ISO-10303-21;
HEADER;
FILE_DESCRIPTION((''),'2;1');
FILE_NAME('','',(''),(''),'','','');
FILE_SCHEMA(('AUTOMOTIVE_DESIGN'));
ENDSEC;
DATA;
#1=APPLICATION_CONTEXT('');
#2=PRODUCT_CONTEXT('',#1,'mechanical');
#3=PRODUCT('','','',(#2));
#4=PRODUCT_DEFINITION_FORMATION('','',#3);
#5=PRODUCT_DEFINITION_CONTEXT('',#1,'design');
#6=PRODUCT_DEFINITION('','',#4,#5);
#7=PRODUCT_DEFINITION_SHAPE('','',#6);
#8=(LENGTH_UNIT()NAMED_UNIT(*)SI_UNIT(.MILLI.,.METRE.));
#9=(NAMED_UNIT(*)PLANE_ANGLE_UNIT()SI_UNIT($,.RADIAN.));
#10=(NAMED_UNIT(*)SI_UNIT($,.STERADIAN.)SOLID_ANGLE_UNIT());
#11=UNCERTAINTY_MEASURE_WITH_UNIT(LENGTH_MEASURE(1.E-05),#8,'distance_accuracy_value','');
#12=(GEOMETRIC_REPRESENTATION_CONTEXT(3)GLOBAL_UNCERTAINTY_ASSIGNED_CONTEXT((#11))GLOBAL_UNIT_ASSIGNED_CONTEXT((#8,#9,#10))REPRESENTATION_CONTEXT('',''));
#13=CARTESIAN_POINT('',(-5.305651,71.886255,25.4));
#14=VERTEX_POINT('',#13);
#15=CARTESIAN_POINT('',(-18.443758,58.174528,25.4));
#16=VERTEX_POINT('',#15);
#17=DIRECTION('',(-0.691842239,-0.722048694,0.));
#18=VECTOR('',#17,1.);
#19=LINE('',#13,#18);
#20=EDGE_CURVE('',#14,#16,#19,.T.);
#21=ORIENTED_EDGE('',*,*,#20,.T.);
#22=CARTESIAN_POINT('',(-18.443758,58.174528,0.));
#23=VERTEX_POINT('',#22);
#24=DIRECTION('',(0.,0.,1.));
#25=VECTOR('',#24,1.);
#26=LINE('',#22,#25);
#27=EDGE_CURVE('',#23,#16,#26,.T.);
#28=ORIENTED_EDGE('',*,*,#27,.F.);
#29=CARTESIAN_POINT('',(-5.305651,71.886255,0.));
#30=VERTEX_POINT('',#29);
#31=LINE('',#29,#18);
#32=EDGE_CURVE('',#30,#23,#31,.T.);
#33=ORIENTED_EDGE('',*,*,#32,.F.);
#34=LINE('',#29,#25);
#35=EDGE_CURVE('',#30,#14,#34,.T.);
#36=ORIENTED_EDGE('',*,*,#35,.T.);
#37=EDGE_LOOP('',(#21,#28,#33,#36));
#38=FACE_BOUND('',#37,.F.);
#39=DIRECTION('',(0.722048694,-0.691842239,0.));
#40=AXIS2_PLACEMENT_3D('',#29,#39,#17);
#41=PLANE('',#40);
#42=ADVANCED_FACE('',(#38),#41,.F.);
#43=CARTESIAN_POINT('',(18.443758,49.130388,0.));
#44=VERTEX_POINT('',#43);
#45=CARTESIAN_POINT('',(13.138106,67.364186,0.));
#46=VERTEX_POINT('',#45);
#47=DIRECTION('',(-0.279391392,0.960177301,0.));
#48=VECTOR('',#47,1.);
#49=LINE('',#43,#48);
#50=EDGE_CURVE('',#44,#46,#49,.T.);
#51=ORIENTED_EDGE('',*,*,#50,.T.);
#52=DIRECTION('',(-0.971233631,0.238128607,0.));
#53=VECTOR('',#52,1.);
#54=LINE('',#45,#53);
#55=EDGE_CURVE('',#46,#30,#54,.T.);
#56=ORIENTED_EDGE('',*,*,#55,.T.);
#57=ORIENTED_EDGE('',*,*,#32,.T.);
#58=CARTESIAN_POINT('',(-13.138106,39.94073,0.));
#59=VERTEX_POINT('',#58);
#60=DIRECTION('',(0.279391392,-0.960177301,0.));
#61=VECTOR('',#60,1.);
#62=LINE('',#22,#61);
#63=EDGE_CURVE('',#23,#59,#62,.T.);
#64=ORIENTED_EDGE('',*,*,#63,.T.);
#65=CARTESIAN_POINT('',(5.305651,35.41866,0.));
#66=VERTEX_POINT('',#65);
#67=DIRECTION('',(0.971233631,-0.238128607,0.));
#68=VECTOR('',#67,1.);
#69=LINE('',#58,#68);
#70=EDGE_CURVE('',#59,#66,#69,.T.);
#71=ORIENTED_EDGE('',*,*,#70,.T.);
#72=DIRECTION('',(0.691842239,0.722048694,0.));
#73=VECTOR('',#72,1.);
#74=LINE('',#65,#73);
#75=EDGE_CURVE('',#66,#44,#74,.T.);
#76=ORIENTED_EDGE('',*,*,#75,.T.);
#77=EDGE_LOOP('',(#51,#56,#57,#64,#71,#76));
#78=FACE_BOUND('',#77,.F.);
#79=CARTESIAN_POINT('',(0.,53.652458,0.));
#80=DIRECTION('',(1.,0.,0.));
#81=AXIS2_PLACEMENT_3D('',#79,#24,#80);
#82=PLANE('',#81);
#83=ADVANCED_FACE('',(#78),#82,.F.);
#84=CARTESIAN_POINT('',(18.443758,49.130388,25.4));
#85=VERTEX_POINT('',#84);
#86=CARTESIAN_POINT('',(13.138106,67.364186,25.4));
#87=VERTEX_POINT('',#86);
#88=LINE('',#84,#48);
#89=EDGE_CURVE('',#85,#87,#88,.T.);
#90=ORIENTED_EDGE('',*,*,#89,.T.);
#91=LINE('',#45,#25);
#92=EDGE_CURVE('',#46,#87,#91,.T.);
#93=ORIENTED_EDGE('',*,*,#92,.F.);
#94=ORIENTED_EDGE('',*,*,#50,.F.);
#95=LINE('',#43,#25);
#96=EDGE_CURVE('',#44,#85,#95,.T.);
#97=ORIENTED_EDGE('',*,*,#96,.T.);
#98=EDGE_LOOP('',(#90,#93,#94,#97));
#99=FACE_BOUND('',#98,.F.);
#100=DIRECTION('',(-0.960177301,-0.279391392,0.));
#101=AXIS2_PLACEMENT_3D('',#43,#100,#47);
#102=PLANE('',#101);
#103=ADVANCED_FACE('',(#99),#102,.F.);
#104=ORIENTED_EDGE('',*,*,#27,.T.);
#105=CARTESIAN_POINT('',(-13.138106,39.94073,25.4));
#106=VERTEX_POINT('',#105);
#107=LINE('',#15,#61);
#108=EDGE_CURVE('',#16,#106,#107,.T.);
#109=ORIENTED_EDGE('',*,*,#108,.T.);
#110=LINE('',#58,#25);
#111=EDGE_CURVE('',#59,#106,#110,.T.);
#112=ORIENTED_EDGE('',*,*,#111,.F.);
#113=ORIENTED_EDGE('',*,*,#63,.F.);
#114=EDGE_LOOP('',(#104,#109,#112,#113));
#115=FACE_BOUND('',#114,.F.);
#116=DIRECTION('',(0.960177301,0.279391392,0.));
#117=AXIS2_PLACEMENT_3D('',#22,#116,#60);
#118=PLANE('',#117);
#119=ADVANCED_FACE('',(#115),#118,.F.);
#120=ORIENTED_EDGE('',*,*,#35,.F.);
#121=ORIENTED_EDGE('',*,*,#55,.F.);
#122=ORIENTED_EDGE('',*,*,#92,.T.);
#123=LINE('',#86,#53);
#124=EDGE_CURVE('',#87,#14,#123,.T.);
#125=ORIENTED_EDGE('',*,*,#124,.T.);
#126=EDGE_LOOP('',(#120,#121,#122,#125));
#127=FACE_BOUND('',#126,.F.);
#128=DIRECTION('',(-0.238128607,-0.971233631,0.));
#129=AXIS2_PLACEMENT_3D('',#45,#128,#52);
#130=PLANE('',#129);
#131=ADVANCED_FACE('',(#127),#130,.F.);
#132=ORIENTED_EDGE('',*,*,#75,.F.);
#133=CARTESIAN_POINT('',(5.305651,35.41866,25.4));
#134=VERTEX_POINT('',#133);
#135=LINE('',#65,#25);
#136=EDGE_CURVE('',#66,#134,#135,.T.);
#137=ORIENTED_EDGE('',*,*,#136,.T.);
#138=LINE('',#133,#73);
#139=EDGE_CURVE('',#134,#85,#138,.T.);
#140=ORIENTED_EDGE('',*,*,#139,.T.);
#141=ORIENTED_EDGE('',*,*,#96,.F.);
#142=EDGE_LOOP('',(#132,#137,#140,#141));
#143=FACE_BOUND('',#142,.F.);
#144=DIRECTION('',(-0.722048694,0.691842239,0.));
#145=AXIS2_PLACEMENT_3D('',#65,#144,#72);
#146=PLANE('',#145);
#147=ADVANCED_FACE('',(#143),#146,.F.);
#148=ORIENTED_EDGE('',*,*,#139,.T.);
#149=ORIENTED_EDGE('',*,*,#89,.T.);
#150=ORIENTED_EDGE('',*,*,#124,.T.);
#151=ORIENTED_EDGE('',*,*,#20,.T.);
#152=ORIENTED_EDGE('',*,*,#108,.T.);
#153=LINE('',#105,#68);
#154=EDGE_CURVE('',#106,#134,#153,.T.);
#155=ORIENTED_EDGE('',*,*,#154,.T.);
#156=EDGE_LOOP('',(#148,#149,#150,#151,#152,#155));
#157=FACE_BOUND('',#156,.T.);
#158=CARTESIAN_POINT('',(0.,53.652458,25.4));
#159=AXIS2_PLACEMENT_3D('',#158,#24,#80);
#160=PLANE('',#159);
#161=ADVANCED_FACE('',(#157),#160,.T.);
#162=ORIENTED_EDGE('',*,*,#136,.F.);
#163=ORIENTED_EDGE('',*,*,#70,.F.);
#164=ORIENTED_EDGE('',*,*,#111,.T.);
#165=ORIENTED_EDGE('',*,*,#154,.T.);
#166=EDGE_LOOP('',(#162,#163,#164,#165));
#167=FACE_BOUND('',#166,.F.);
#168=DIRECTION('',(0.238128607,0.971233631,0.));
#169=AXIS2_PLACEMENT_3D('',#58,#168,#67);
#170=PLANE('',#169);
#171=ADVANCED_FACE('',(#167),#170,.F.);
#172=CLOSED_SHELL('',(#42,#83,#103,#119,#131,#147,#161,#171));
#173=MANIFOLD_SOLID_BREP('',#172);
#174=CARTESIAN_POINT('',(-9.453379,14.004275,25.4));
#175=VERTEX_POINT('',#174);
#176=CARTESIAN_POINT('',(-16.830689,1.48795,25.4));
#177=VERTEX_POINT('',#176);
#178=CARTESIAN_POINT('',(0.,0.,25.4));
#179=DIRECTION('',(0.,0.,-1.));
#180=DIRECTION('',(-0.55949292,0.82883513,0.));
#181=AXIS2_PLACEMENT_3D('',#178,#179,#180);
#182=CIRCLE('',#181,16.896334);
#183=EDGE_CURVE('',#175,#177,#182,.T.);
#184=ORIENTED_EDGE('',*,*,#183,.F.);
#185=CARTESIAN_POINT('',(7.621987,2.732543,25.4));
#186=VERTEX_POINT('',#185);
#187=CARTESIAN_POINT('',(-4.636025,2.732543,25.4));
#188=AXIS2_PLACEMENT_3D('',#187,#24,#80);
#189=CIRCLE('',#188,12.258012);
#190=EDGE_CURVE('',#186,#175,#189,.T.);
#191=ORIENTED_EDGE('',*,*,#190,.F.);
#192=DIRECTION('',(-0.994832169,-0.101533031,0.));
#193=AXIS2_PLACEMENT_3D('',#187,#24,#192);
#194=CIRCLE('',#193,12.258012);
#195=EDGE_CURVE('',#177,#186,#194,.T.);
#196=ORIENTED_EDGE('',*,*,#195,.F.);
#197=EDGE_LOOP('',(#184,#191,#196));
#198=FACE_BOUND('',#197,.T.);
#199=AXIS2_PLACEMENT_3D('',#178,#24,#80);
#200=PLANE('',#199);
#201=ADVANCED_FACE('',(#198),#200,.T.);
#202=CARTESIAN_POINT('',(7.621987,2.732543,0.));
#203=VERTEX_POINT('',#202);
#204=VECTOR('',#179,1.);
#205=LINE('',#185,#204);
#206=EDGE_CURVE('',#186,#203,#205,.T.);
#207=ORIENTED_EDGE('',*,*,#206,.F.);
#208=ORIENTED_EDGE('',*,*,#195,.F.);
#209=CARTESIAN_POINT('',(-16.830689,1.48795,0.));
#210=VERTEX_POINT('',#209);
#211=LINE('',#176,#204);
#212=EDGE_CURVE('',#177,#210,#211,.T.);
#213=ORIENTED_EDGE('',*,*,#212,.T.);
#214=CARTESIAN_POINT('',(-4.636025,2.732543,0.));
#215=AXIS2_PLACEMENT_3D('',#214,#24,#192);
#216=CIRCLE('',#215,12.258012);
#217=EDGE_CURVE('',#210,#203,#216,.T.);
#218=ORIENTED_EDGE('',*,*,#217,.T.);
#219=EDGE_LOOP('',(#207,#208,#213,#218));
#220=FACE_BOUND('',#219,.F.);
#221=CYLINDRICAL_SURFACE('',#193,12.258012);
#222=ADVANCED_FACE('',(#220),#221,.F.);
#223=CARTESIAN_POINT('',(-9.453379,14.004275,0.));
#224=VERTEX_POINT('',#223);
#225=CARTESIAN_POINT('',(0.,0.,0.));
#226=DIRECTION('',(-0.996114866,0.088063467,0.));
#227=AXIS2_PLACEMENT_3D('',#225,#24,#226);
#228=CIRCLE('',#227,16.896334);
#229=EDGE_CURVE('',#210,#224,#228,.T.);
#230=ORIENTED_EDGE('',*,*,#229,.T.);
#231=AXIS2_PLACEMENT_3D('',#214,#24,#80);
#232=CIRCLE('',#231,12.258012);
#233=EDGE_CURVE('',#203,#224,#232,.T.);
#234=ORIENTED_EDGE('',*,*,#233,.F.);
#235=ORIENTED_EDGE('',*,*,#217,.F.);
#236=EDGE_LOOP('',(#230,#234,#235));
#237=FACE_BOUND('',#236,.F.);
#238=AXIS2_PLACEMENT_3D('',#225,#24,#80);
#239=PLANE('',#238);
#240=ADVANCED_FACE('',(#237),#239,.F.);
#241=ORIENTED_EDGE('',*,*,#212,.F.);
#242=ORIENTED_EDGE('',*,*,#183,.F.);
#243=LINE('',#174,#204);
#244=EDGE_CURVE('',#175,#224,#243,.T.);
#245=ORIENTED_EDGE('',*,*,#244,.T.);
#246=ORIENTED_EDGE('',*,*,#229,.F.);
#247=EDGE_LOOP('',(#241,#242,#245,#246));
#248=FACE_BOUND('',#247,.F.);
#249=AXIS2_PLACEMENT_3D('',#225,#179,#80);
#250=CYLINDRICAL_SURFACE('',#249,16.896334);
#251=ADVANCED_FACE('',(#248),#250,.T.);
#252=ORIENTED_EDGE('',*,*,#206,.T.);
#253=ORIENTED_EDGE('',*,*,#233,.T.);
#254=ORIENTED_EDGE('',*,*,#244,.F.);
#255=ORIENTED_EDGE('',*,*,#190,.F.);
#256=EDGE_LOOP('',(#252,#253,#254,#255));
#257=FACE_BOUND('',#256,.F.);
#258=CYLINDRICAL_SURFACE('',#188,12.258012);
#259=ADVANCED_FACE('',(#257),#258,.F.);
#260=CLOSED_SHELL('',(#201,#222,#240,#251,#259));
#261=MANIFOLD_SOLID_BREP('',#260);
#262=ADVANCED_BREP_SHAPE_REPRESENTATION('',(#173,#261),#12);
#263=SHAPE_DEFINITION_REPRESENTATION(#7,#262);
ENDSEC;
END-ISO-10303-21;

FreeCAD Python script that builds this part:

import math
import FreeCAD as App
import Part
import Sketcher


def add_polygon(sketch, points):
    """Adds a closed chain of lines whose ends are joined by coincident constraints."""
    first, n = sketch.GeometryCount, len(points)
    for a, b in zip(points, points[1:] + points[:1]):
        sketch.addGeometry(Part.LineSegment(App.Vector(*a, 0), App.Vector(*b, 0)), False)
    for i in range(n):
        sketch.addConstraint(Sketcher.Constraint("Coincident", first + i, 2, first + (i + 1) % n, 1))

doc = App.newDocument("Part")
params = doc.addObject("Spreadsheet::Sheet", "Params")
for row, (alias, value) in enumerate([
    ("pad1_length", "1 in"),
    ("pocket1_length", "1 in"),
    ("pad2_length", "1 in"),
], start=1):
    params.set(f"A{row}", alias)
    params.set(f"B{row}", "=" + value)
    params.setAlias(f"B{row}", alias)

body = doc.addObject("PartDesign::Body", "Body")

sketch1 = body.newObject("Sketcher::SketchObject", "Sketch")
sketch1.AttachmentSupport = (doc.getObject("XY_Plane"), [""])
sketch1.MapMode = "FlatFace"
sketch1.addGeometry(Part.Circle(App.Vector(0, 0, 0), App.Vector(0, 0, 1), 17), False)
sketch1.addConstraint([
    Sketcher.Constraint("Coincident", 0, 3, -1, 1),
    Sketcher.Constraint("Diameter", 0, 33.792668),
])
pad1 = body.newObject("PartDesign::Pad", "Pad")
pad1.Profile = sketch1
pad1.setExpression("Length", "Params.pad1_length")

sketch2 = body.newObject("Sketcher::SketchObject", "Sketch001")
sketch2.AttachmentSupport = (doc.getObject("XY_Plane"), [""])
sketch2.MapMode = "FlatFace"
sketch2.AttachmentOffset = App.Placement(App.Vector(0, 0, 1 * 25.4), App.Rotation())
sketch2.addGeometry([
    Part.ArcOfCircle(Part.Circle(App.Vector(-5, 3, 0), App.Vector(0, 0, 1), 12), math.radians(-174), math.radians(0)),
    Part.ArcOfCircle(Part.Circle(App.Vector(-5, 3, 0), App.Vector(0, 0, 1), 12), math.radians(0), math.radians(113)),
    Part.ArcOfCircle(Part.Circle(App.Vector(0, 0, 0), App.Vector(0, 0, 1), 17), math.radians(124), math.radians(175)),
], False)
sketch2.addConstraint([
    Sketcher.Constraint("Tangent", 0, 2, 1, 1),
    Sketcher.Constraint("Coincident", 1, 2, 2, 1),
    Sketcher.Constraint("Coincident", 2, 2, 0, 1),
    Sketcher.Constraint("Coincident", 2, 3, -1, 1),
    Sketcher.Constraint("Equal", 0, 1),
    Sketcher.Constraint("Horizontal", 1, 3, 0, 2),
    Sketcher.Constraint("Radius", 0, 12.258012),
    Sketcher.Constraint("Radius", 2, 16.896334),
    Sketcher.Constraint("DistanceX", 1, 2, -1, 1, 9.453379),
    Sketcher.Constraint("DistanceX", 2, 2, -1, 1, 16.830689),
])
pocket1 = body.newObject("PartDesign::Pocket", "Pocket")
pocket1.Profile = sketch2
pocket1.setExpression("Length", "Params.pocket1_length")
body2 = doc.addObject("PartDesign::Body", "Body001")

sketch3 = body2.newObject("Sketcher::SketchObject", "Sketch002")
sketch3.AttachmentSupport = (doc.getObject("XY_Plane001"), [""])
sketch3.MapMode = "FlatFace"
add_polygon(sketch3, [(18, 49), (13, 67), (-5, 72), (-18, 58), (-13, 40), (5, 35)])
sketch3.addConstraint([
    Sketcher.Constraint("Parallel", 0, 3),
    Sketcher.Constraint("Parallel", 1, 4),
    Sketcher.Constraint("Parallel", 2, 5),
    Sketcher.Constraint("Equal", 0, 1),
    Sketcher.Constraint("Equal", 1, 2),
    Sketcher.Constraint("Equal", 2, 3),
    Sketcher.Constraint("Distance", 0, 18.990032),
    Sketcher.Constraint("DistanceX", 1, 2, -1, 1, 5.305651),
    Sketcher.Constraint("DistanceY", -1, 1, 3, 2, 39.94073),
    Sketcher.Constraint("DistanceX", -1, 1, 4, 2, 5.305651),
    Sketcher.Constraint("DistanceY", -1, 1, 4, 2, 35.41866),
    Sketcher.Constraint("DistanceY", -1, 1, 5, 2, 49.130388),
])
pad2 = body2.newObject("PartDesign::Pad", "Pad001")
pad2.Profile = sketch3
pad2.setExpression("Length", "Params.pad2_length")

doc.recompute()
